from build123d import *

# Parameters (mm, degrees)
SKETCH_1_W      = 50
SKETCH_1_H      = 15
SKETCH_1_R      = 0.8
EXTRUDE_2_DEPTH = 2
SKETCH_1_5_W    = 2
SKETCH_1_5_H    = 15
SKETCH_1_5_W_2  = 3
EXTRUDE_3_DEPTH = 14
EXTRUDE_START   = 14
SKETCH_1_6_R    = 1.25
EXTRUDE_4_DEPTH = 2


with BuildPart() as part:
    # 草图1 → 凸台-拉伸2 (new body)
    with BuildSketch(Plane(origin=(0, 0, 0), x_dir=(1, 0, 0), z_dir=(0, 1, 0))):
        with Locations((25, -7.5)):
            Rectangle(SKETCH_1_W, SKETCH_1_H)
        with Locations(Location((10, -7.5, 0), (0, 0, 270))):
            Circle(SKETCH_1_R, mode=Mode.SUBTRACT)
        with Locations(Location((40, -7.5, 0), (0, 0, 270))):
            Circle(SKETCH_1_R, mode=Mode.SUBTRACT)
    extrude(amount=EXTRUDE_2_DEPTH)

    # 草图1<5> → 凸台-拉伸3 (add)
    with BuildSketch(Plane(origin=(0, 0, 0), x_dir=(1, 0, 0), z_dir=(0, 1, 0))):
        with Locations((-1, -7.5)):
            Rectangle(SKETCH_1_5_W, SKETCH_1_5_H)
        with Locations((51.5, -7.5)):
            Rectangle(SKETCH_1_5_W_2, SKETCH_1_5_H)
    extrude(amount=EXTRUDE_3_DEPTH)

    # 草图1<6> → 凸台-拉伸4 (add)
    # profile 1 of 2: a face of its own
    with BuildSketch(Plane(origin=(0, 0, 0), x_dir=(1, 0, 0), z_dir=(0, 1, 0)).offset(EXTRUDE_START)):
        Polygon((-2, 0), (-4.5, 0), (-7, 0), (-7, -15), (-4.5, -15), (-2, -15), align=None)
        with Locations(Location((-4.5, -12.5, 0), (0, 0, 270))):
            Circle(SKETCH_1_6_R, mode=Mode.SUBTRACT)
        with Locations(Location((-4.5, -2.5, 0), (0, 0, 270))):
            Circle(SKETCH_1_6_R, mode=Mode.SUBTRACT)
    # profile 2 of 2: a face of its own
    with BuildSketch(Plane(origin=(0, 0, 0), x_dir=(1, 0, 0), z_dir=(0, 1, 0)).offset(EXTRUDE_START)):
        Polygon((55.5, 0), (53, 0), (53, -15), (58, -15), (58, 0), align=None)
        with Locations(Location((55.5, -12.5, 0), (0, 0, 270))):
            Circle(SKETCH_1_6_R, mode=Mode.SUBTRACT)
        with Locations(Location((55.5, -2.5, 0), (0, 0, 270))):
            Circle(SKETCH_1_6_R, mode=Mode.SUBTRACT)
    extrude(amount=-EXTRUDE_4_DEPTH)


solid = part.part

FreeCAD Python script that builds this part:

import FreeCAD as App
import Part
import Sketcher
Q = App.Units.Quantity

doc = App.newDocument("Part")
params = doc.addObject("Spreadsheet::Sheet", "Params")
for row, (alias, value) in enumerate([
    ("sketch1_diameter", "1.6 mm"),
    ("sketch1_width", "50 mm"),
    ("sketch1_height", "15 mm"),
    ("pad1_length", "2 mm"),
    ("sketch2_width", "2 mm"),
    ("sketch2_width2", "3 mm"),
    ("sketch2_height", "15 mm"),
    ("pad2_length", "14 mm"),
    ("sketch3_diameter", "2.5 mm"),
    ("sketch3_width", "5 mm"),
    ("sketch3_height", "15 mm"),
    ("pad3_length", "2 mm"),
], start=1):
    params.set(f"A{row}", alias)
    params.set(f"B{row}", "=" + value)
    params.setAlias(f"B{row}", alias)

body = doc.addObject("PartDesign::Body", "Body")

# Sketch on XZ plane
sketch1 = body.newObject("Sketcher::SketchObject", "Sketch")
sketch1.AttachmentSupport = (doc.getObject("XZ_Plane"), [""])
sketch1.MapMode = "FlatFace"
sketch1.addGeometry([
    Part.LineSegment(App.Vector(0, 0, 0), App.Vector(0, 15, 0)),  # 0
    Part.LineSegment(App.Vector(0, 15, 0), App.Vector(50, 15, 0)),  # 1
    Part.LineSegment(App.Vector(50, 15, 0), App.Vector(50, 0, 0)),  # 2
    Part.LineSegment(App.Vector(50, 0, 0), App.Vector(0, 0, 0)),  # 3
    Part.Circle(App.Vector(10, 7.5, 0), App.Vector(0, 0, 1), 0.8),  # 4
    Part.Circle(App.Vector(40, 7.5, 0), App.Vector(0, 0, 1), 0.8),  # 5
], False)
sketch1.addConstraint([
    Sketcher.Constraint("Coincident", 0, 2, 1, 1),
    Sketcher.Constraint("Coincident", 1, 2, 2, 1),
    Sketcher.Constraint("Coincident", 2, 2, 3, 1),
    Sketcher.Constraint("Coincident", 3, 2, 0, 1),
    Sketcher.Constraint("Vertical", 0),
    Sketcher.Constraint("Horizontal", 1),
    Sketcher.Constraint("Vertical", 2),
    Sketcher.Constraint("Horizontal", 3),
    Sketcher.Constraint("Coincident", 3, 2, -1, 1),
    Sketcher.Constraint("Equal", 4, 5),
    Sketcher.Constraint("Horizontal", 4, 3, 5, 3),
    Sketcher.Constraint("Diameter", 4, Q("1.6 mm")),
    Sketcher.Constraint("DistanceX", 1, 1, 1, 2, Q("50 mm")),
    Sketcher.Constraint("DistanceY", 0, 1, 0, 2, Q("15 mm")),
    Sketcher.Constraint("DistanceX", -1, 1, 4, 3, Q("10 mm")),
    Sketcher.Constraint("DistanceX", -1, 1, 5, 3, Q("40 mm")),
    Sketcher.Constraint("DistanceY", -1, 1, 4, 3, Q("7.5 mm")),
])
sketch1.setExpression("Constraints[11]", "Params.sketch1_diameter")
sketch1.setExpression("Constraints[12]", "Params.sketch1_width")
sketch1.setExpression("Constraints[13]", "Params.sketch1_height")
pad1 = body.newObject("PartDesign::Pad", "Pad")
pad1.Profile = sketch1
pad1.setExpression("Length", "Params.pad1_length")
pad1.Reversed = True

# Sketch on XZ plane
sketch2 = body.newObject("Sketcher::SketchObject", "Sketch001")
sketch2.AttachmentSupport = (doc.getObject("XZ_Plane"), [""])
sketch2.MapMode = "FlatFace"
sketch2.addGeometry([
    Part.LineSegment(App.Vector(-2, 0, 0), App.Vector(-2, 15, 0)),  # 0
    Part.LineSegment(App.Vector(-2, 15, 0), App.Vector(0, 15, 0)),  # 1
    Part.LineSegment(App.Vector(0, 15, 0), App.Vector(0, 0, 0)),  # 2
    Part.LineSegment(App.Vector(0, 0, 0), App.Vector(-2, 0, 0)),  # 3
    Part.LineSegment(App.Vector(50, 0, 0), App.Vector(50, 15, 0)),  # 4
    Part.LineSegment(App.Vector(50, 15, 0), App.Vector(53, 15, 0)),  # 5
    Part.LineSegment(App.Vector(53, 15, 0), App.Vector(53, 0, 0)),  # 6
    Part.LineSegment(App.Vector(53, 0, 0), App.Vector(50, 0, 0)),  # 7
], False)
sketch2.addConstraint([
    Sketcher.Constraint("Coincident", 0, 2, 1, 1),
    Sketcher.Constraint("Coincident", 1, 2, 2, 1),
    Sketcher.Constraint("Coincident", 2, 2, 3, 1),
    Sketcher.Constraint("Coincident", 3, 2, 0, 1),
    Sketcher.Constraint("Coincident", 4, 2, 5, 1),
    Sketcher.Constraint("Coincident", 5, 2, 6, 1),
    Sketcher.Constraint("Coincident", 6, 2, 7, 1),
    Sketcher.Constraint("Coincident", 7, 2, 4, 1),
    Sketcher.Constraint("Vertical", 0),
    Sketcher.Constraint("Horizontal", 1),
    Sketcher.Constraint("Vertical", 2),
    Sketcher.Constraint("Horizontal", 3),
    Sketcher.Constraint("Vertical", 4),
    Sketcher.Constraint("Horizontal", 5),
    Sketcher.Constraint("Vertical", 6),
    Sketcher.Constraint("Horizontal", 7),
    Sketcher.Constraint("Coincident", 2, 2, -1, 1),
    Sketcher.Constraint("PointOnObject", 6, 2, -1),
    Sketcher.Constraint("Horizontal", 1, 2, 4, 2),
    Sketcher.Constraint("DistanceX", 1, 1, 1, 2, Q("2 mm")),
    Sketcher.Constraint("DistanceX", 5, 1, 5, 2, Q("3 mm")),
    Sketcher.Constraint("DistanceY", 0, 1, 0, 2, Q("15 mm")),
    Sketcher.Constraint("DistanceX", -1, 1, 4, 2, Q("50 mm")),
])
sketch2.setExpression("Constraints[19]", "Params.sketch2_width")
sketch2.setExpression("Constraints[20]", "Params.sketch2_width2")
sketch2.setExpression("Constraints[21]", "Params.sketch2_height")
pad2 = body.newObject("PartDesign::Pad", "Pad001")
pad2.Profile = sketch2
pad2.setExpression("Length", "Params.pad2_length")
pad2.Reversed = True

# Sketch on XZ plane
sketch3 = body.newObject("Sketcher::SketchObject", "Sketch002")
sketch3.AttachmentSupport = (doc.getObject("XZ_Plane"), [""])
sketch3.MapMode = "FlatFace"
sketch3.AttachmentOffset = App.Placement(App.Vector(0, 0, -14), App.Rotation())
sketch3.addGeometry([
    Part.LineSegment(App.Vector(-2, 0, 0), App.Vector(-7, 0, 0)),  # 0
    Part.LineSegment(App.Vector(-7, 0, 0), App.Vector(-7, 15, 0)),  # 1
    Part.LineSegment(App.Vector(-7, 15, 0), App.Vector(-2, 15, 0)),  # 2
    Part.LineSegment(App.Vector(-2, 15, 0), App.Vector(-2, 0, 0)),  # 3
    Part.Circle(App.Vector(-4.5, 12.5, 0), App.Vector(0, 0, 1), 1.25),  # 4
    Part.Circle(App.Vector(-4.5, 2.5, 0), App.Vector(0, 0, 1), 1.25),  # 5
    Part.LineSegment(App.Vector(53, 0, 0), App.Vector(53, 15, 0)),  # 6
    Part.LineSegment(App.Vector(53, 15, 0), App.Vector(58, 15, 0)),  # 7
    Part.LineSegment(App.Vector(58, 15, 0), App.Vector(58, 0, 0)),  # 8
    Part.LineSegment(App.Vector(58, 0, 0), App.Vector(53, 0, 0)),  # 9
    Part.Circle(App.Vector(55.5, 12.5, 0), App.Vector(0, 0, 1), 1.25),  # 10
    Part.Circle(App.Vector(55.5, 2.5, 0), App.Vector(0, 0, 1), 1.25),  # 11
], False)
sketch3.addConstraint([
    Sketcher.Constraint("Coincident", 0, 2, 1, 1),
    Sketcher.Constraint("Coincident", 1, 2, 2, 1),
    Sketcher.Constraint("Coincident", 2, 2, 3, 1),
    Sketcher.Constraint("Coincident", 3, 2, 0, 1),
    Sketcher.Constraint("Coincident", 6, 2, 7, 1),
    Sketcher.Constraint("Coincident", 7, 2, 8, 1),
    Sketcher.Constraint("Coincident", 8, 2, 9, 1),
    Sketcher.Constraint("Coincident", 9, 2, 6, 1),
    Sketcher.Constraint("Horizontal", 0),
    Sketcher.Constraint("Vertical", 1),
    Sketcher.Constraint("Horizontal", 2),
    Sketcher.Constraint("Vertical", 3),
    Sketcher.Constraint("Vertical", 6),
    Sketcher.Constraint("Horizontal", 7),
    Sketcher.Constraint("Vertical", 8),
    Sketcher.Constraint("Horizontal", 9),
    Sketcher.Constraint("Equal", 4, 5),
    Sketcher.Constraint("Equal", 5, 10),
    Sketcher.Constraint("Equal", 10, 11),
    Sketcher.Constraint("PointOnObject", 0, 2, -1),
    Sketcher.Constraint("PointOnObject", 8, 2, -1),
    Sketcher.Constraint("Horizontal", 4, 3, 10, 3),
    Sketcher.Constraint("Horizontal", 5, 3, 11, 3),
    Sketcher.Constraint("Horizontal", 2, 2, 6, 2),
    Sketcher.Constraint("Vertical", 4, 3, 5, 3),
    Sketcher.Constraint("Vertical", 10, 3, 11, 3),
    Sketcher.Constraint("Equal", 2, 7),
    Sketcher.Constraint("Diameter", 4, Q("2.5 mm")),
    Sketcher.Constraint("DistanceX", 0, 2, 0, 1, Q("5 mm")),
    Sketcher.Constraint("DistanceY", 1, 1, 1, 2, Q("15 mm")),
    Sketcher.Constraint("DistanceX", 0, 2, -1, 1, Q("7 mm")),
    Sketcher.Constraint("DistanceX", -1, 1, 6, 2, Q("53 mm")),
    Sketcher.Constraint("DistanceY", 5, 3, 4, 3, Q("10 mm")),
    Sketcher.Constraint("DistanceX", 4, 3, 10, 3, Q("60 mm")),
    Sketcher.Constraint("DistanceX", 4, 3, -1, 1, Q("4.5 mm")),
    Sketcher.Constraint("DistanceY", -1, 1, 4, 3, Q("12.5 mm")),
])
sketch3.setExpression("Constraints[27]", "Params.sketch3_diameter")
sketch3.setExpression("Constraints[28]", "Params.sketch3_width")
sketch3.setExpression("Constraints[29]", "Params.sketch3_height")
pad3 = body.newObject("PartDesign::Pad", "Pad002")
pad3.Profile = sketch3
pad3.setExpression("Length", "Params.pad3_length")

doc.recompute()
